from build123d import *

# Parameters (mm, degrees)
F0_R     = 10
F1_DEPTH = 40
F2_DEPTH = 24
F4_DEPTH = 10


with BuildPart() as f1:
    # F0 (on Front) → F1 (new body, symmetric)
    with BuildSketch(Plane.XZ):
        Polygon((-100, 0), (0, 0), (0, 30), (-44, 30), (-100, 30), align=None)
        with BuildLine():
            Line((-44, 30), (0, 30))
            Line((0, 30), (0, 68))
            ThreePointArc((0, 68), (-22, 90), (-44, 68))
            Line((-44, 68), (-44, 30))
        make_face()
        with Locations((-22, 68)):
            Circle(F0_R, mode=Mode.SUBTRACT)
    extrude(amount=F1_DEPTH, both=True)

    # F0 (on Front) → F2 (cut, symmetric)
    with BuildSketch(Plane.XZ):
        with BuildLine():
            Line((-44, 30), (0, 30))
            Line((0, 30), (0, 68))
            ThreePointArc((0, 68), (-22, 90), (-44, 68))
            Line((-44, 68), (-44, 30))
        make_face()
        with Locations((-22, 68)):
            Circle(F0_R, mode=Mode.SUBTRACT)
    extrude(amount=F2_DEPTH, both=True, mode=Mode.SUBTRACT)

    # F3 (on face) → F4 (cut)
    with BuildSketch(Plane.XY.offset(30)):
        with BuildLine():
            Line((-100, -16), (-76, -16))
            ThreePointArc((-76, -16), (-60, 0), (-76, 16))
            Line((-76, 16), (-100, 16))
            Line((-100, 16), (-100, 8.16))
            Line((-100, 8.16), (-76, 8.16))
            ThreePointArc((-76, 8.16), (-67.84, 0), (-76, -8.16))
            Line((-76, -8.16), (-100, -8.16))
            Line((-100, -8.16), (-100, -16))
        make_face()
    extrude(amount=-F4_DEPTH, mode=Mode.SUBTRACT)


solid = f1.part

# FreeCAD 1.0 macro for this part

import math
import FreeCAD as App
import Part
import Sketcher

doc = App.newDocument("Part")
body = doc.addObject("PartDesign::Body", "Body")

sketch1 = doc.addObject("Sketcher::SketchObject", "Sketch")
body.addObject(sketch1)
sketch1.AttachmentSupport = (doc.XZ_Plane, [""])
sketch1.MapMode = "FlatFace"
sketch1.addGeometry([
    Part.LineSegment(App.Vector(-100, 0, 0), App.Vector(0, 0, 0)),
    Part.LineSegment(App.Vector(0, 0, 0), App.Vector(0, 68, 0)),
    Part.ArcOfCircle(Part.Circle(App.Vector(-22, 68, 0), App.Vector(0, 0, 1), 22), math.radians(0), math.radians(180)),
    Part.LineSegment(App.Vector(-44, 68, 0), App.Vector(-44, 30, 0)),
    Part.LineSegment(App.Vector(-44, 30, 0), App.Vector(-100, 30, 0)),
    Part.LineSegment(App.Vector(-100, 30, 0), App.Vector(-100, 0, 0)),
    Part.Circle(App.Vector(-22, 68, 0), App.Vector(0, 0, 1), 10),
], False)
sketch1.addConstraint([
    Sketcher.Constraint("Coincident", 0, 2, 1, 1),
    Sketcher.Constraint("Tangent", 1, 2, 2, 1),
    Sketcher.Constraint("Tangent", 2, 2, 3, 1),
    Sketcher.Constraint("Coincident", 3, 2, 4, 1),
    Sketcher.Constraint("Coincident", 4, 2, 5, 1),
    Sketcher.Constraint("Coincident", 5, 2, 0, 1),
    Sketcher.Constraint("Horizontal", 0),
    Sketcher.Constraint("Vertical", 1),
    Sketcher.Constraint("Vertical", 3),
    Sketcher.Constraint("Horizontal", 4),
    Sketcher.Constraint("Vertical", 5),
    Sketcher.Constraint("Coincident", 0, 2, -1, 1),
    Sketcher.Constraint("Coincident", 6, 3, 2, 3),
    Sketcher.Constraint("Diameter", 6, 20.0),
    Sketcher.Constraint("Radius", 2, 22.0),
    Sketcher.Constraint("DistanceX", 0, 1, 0, 2, 100.0),
    Sketcher.Constraint("DistanceY", 1, 1, 1, 2, 68.0),
    Sketcher.Constraint("DistanceY", 3, 2, 3, 1, 38.0),
])
pad1 = doc.addObject("PartDesign::Pad", "Pad")
body.addObject(pad1)
pad1.Profile = sketch1
pad1.Length = 80
pad1.Midplane = True

sketch2 = doc.addObject("Sketcher::SketchObject", "Sketch001")
body.addObject(sketch2)
sketch2.AttachmentSupport = (doc.XZ_Plane, [""])
sketch2.MapMode = "FlatFace"
sketch2.addGeometry([
    Part.LineSegment(App.Vector(-44, 30, 0), App.Vector(0, 30, 0)),
    Part.LineSegment(App.Vector(0, 30, 0), App.Vector(0, 68, 0)),
    Part.ArcOfCircle(Part.Circle(App.Vector(-22, 68, 0), App.Vector(0, 0, 1), 22), math.radians(0), math.radians(180)),
    Part.LineSegment(App.Vector(-44, 68, 0), App.Vector(-44, 30, 0)),
    Part.Circle(App.Vector(-22, 68, 0), App.Vector(0, 0, 1), 10),
], False)
sketch2.addConstraint([
    Sketcher.Constraint("Coincident", 0, 2, 1, 1),
    Sketcher.Constraint("Tangent", 1, 2, 2, 1),
    Sketcher.Constraint("Tangent", 2, 2, 3, 1),
    Sketcher.Constraint("Coincident", 3, 2, 0, 1),
    Sketcher.Constraint("Horizontal", 0),
    Sketcher.Constraint("Vertical", 1),
    Sketcher.Constraint("Vertical", 3),
    Sketcher.Constraint("Coincident", 4, 3, 2, 3),
    Sketcher.Constraint("PointOnObject", 0, 2, -2),
    Sketcher.Constraint("Diameter", 4, 20.0),
    Sketcher.Constraint("Radius", 2, 22.0),
    Sketcher.Constraint("DistanceY", 1, 1, 1, 2, 38.0),
    Sketcher.Constraint("DistanceY", -1, 1, 2, 3, 68.0),
])
pocket1 = doc.addObject("PartDesign::Pocket", "Pocket")
body.addObject(pocket1)
pocket1.Profile = sketch2
pocket1.Length = 48
pocket1.Midplane = True

sketch3 = doc.addObject("Sketcher::SketchObject", "Sketch002")
body.addObject(sketch3)
sketch3.AttachmentSupport = (doc.XY_Plane, [""])
sketch3.MapMode = "FlatFace"
sketch3.AttachmentOffset = App.Placement(App.Vector(0, 0, 30), App.Rotation())
sketch3.addGeometry([
    Part.LineSegment(App.Vector(-100, -16, 0), App.Vector(-76, -16, 0)),
    Part.ArcOfCircle(Part.Circle(App.Vector(-76, 0, 0), App.Vector(0, 0, 1), 16), math.radians(-90), math.radians(90)),
    Part.LineSegment(App.Vector(-76, 16, 0), App.Vector(-100, 16, 0)),
    Part.LineSegment(App.Vector(-100, 16, 0), App.Vector(-100, 8.16, 0)),
    Part.LineSegment(App.Vector(-100, 8.16, 0), App.Vector(-76, 8.16, 0)),
    Part.ArcOfCircle(Part.Circle(App.Vector(-76, 0, 0), App.Vector(0, 0, 1), 8.16), math.radians(-90), math.radians(90)),
    Part.LineSegment(App.Vector(-76, -8.16, 0), App.Vector(-100, -8.16, 0)),
    Part.LineSegment(App.Vector(-100, -8.16, 0), App.Vector(-100, -16, 0)),
], False)
sketch3.addConstraint([
    Sketcher.Constraint("Tangent", 0, 2, 1, 1),
    Sketcher.Constraint("Tangent", 1, 2, 2, 1),
    Sketcher.Constraint("Coincident", 2, 2, 3, 1),
    Sketcher.Constraint("Coincident", 3, 2, 4, 1),
    Sketcher.Constraint("Tangent", 4, 2, 5, 2),
    Sketcher.Constraint("Tangent", 5, 1, 6, 1),
    Sketcher.Constraint("Coincident", 6, 2, 7, 1),
    Sketcher.Constraint("Coincident", 7, 2, 0, 1),
    Sketcher.Constraint("Horizontal", 0),
    Sketcher.Constraint("Horizontal", 2),
    Sketcher.Constraint("Vertical", 3),
    Sketcher.Constraint("Horizontal", 4),
    Sketcher.Constraint("Horizontal", 6),
    Sketcher.Constraint("Vertical", 7),
    Sketcher.Constraint("Coincident", 5, 3, 1, 3),
    Sketcher.Constraint("Symmetric", 3, 2, 6, 2, -1),
    Sketcher.Constraint("Radius", 1, 16.0),
    Sketcher.Constraint("DistanceX", 0, 1, 0, 2, 24.0),
    Sketcher.Constraint("Radius", 5, 8.16),
    Sketcher.Constraint("DistanceX", 1, 3, -1, 1, 76.0),
])
pocket2 = doc.addObject("PartDesign::Pocket", "Pocket001")
body.addObject(pocket2)
pocket2.Profile = sketch3
pocket2.Length = 10

doc.recompute()
